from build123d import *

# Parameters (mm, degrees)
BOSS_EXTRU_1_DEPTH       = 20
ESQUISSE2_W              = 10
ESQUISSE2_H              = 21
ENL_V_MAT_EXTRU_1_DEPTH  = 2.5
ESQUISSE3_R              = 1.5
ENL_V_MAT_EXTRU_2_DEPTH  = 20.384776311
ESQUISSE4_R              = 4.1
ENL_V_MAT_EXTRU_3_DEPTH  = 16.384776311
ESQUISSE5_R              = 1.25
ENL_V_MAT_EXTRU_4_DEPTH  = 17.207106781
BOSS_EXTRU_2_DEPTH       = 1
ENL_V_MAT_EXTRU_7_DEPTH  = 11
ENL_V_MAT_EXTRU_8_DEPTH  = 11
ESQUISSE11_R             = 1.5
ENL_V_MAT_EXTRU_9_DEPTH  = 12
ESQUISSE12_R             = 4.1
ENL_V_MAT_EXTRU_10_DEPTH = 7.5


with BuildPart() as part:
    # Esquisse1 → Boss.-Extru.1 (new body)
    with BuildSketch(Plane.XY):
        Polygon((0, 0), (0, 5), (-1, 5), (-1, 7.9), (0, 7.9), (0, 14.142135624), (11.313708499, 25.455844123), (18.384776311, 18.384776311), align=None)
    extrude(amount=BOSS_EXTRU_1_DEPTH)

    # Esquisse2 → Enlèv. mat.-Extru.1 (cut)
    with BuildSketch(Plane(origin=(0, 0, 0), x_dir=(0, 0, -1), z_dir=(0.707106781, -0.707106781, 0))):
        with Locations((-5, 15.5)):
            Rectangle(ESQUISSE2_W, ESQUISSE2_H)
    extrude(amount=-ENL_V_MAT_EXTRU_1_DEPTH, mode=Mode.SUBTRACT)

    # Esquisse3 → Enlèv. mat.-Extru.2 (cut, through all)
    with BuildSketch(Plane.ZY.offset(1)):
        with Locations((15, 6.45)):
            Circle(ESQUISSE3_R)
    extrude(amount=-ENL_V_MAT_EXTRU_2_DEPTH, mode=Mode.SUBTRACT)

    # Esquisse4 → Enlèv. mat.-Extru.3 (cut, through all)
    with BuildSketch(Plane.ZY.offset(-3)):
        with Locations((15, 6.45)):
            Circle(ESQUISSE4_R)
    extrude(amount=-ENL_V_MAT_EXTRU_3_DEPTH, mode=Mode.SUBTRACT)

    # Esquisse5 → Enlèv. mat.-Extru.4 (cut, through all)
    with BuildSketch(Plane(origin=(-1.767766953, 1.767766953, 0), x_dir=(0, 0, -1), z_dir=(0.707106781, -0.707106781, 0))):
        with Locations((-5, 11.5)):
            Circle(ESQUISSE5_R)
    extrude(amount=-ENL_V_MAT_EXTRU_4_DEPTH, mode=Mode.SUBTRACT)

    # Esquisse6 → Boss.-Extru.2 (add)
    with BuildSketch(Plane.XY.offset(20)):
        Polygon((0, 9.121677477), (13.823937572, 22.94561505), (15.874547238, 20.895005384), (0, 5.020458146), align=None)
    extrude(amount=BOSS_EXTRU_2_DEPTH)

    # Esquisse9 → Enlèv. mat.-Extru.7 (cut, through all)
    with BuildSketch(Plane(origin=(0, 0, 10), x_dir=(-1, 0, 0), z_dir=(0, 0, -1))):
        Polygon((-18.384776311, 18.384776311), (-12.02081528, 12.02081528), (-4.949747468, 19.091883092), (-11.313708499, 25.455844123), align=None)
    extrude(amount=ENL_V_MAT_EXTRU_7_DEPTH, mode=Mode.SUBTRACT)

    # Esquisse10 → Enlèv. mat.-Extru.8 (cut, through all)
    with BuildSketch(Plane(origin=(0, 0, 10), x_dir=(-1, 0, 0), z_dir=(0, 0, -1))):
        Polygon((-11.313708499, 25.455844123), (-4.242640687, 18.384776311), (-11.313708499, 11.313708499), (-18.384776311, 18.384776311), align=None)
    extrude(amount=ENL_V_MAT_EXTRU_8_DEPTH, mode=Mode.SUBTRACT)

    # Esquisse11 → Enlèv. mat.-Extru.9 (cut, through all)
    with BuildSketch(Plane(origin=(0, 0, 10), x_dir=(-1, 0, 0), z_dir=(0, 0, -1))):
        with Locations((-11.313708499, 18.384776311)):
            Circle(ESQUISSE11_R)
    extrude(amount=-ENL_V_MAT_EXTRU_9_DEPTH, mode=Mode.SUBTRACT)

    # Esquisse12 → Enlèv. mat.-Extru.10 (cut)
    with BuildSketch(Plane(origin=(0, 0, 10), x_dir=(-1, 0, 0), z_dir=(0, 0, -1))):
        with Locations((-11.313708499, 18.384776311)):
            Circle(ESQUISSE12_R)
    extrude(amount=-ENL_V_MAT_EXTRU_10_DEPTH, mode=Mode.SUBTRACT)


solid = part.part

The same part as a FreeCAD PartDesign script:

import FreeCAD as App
import Part
import Sketcher
from FreeCAD import Vector
Q = App.Units.Quantity

doc = App.newDocument("Part")
body = doc.addObject("PartDesign::Body", "Body")

sketch1 = body.newObject("Sketcher::SketchObject", "Sketch")
sketch1.AttachmentSupport = (doc.getObject("XY_Plane"), [""])
sketch1.MapMode = "FlatFace"
sketch1.addGeometry([
    Part.LineSegment(Vector(0, 5, 0), Vector(0, 0, 0)),
    Part.LineSegment(Vector(0, 0, 0), Vector(18.384776, 18.384776, 0)),
    Part.LineSegment(Vector(18.384776, 18.384776, 0), Vector(11.313708, 25.455844, 0)),
    Part.LineSegment(Vector(11.313708, 25.455844, 0), Vector(0, 14.142136, 0)),
    Part.LineSegment(Vector(0, 14.142136, 0), Vector(0, 7.9, 0)),
    Part.LineSegment(Vector(0, 7.9, 0), Vector(-1, 7.9, 0)),
    Part.LineSegment(Vector(-1, 7.9, 0), Vector(-1, 5, 0)),
    Part.LineSegment(Vector(-1, 5, 0), Vector(0, 5, 0)),
], False)
sketch1.addConstraint([
    Sketcher.Constraint("Coincident", 0, 2, 1, 1),
    Sketcher.Constraint("Coincident", 1, 2, 2, 1),
    Sketcher.Constraint("Coincident", 2, 2, 3, 1),
    Sketcher.Constraint("Coincident", 3, 2, 4, 1),
    Sketcher.Constraint("Coincident", 4, 2, 5, 1),
    Sketcher.Constraint("Coincident", 5, 2, 6, 1),
    Sketcher.Constraint("Coincident", 6, 2, 7, 1),
    Sketcher.Constraint("Coincident", 7, 2, 0, 1),
    Sketcher.Constraint("Vertical", 0),
    Sketcher.Constraint("Vertical", 4),
    Sketcher.Constraint("Horizontal", 5),
    Sketcher.Constraint("Vertical", 6),
    Sketcher.Constraint("Horizontal", 7),
    Sketcher.Constraint("Coincident", 0, 2, -1, 1),
    Sketcher.Constraint("PointOnObject", 3, 2, -2),
    Sketcher.Constraint("Perpendicular", 1, 2),
    Sketcher.Constraint("Perpendicular", 2, 3),
    Sketcher.Constraint("DistanceX", 5, 2, 5, 1, Q("1 mm")),
    Sketcher.Constraint("DistanceY", 0, 2, 0, 1, Q("5 mm")),
    Sketcher.Constraint("Angle", 1, Q("45 deg")),
    Sketcher.Constraint("Distance", 1, Q("26 mm")),
    Sketcher.Constraint("Distance", 2, Q("10 mm")),
    Sketcher.Constraint("DistanceY", 6, 2, 6, 1, Q("2.9 mm")),
])
pad1 = body.newObject("PartDesign::Pad", "Pad")
pad1.Profile = sketch1
pad1.Length = 20

sketch2 = body.newObject("Sketcher::SketchObject", "Sketch001")
sketch2.Placement = App.Placement(Vector(0, 0, 0), App.Rotation(Vector(0, 0, -1), Vector(0.707106781, 0.707106781, 0), Vector(0.707106781, -0.707106781, 0), "ZXY"))
sketch2.addGeometry([
    Part.LineSegment(Vector(-10, 26, 0), Vector(-10, 5, 0)),
    Part.LineSegment(Vector(-10, 5, 0), Vector(0, 5, 0)),
    Part.LineSegment(Vector(0, 5, 0), Vector(0, 26, 0)),
    Part.LineSegment(Vector(0, 26, 0), Vector(-10, 26, 0)),
], False)
sketch2.addConstraint([
    Sketcher.Constraint("Coincident", 0, 2, 1, 1),
    Sketcher.Constraint("Coincident", 1, 2, 2, 1),
    Sketcher.Constraint("Coincident", 2, 2, 3, 1),
    Sketcher.Constraint("Coincident", 3, 2, 0, 1),
    Sketcher.Constraint("Vertical", 0),
    Sketcher.Constraint("Horizontal", 1),
    Sketcher.Constraint("Vertical", 2),
    Sketcher.Constraint("Horizontal", 3),
    Sketcher.Constraint("PointOnObject", 1, 2, -2),
    Sketcher.Constraint("DistanceX", 1, 1, 1, 2, Q("10 mm")),
    Sketcher.Constraint("DistanceY", 0, 2, 0, 1, Q("21 mm")),
    Sketcher.Constraint("DistanceY", -1, 1, 0, 2, Q("5 mm")),
])
pocket1 = body.newObject("PartDesign::Pocket", "Pocket")
pocket1.Profile = sketch2
pocket1.Length = 2.5

sketch3 = body.newObject("Sketcher::SketchObject", "Sketch002")
sketch3.AttachmentSupport = (doc.getObject("YZ_Plane"), [""])
sketch3.MapMode = "FlatFace"
sketch3.AttachmentOffset = App.Placement(Vector(0, 0, -1), App.Rotation())
sketch3.addGeometry(Part.Circle(Vector(6.45, 15, 0), Vector(0, 0, 1), 1.5), False)
sketch3.addConstraint([
    Sketcher.Constraint("Diameter", 0, Q("3 mm")),
    Sketcher.Constraint("DistanceY", -1, 1, 0, 3, Q("15 mm")),
    Sketcher.Constraint("DistanceX", -1, 1, 0, 3, Q("6.45 mm")),
])
pocket2 = body.newObject("PartDesign::Pocket", "Pocket001")
pocket2.Profile = sketch3
pocket2.Type = "ThroughAll"
pocket2.Reversed = True

sketch4 = body.newObject("Sketcher::SketchObject", "Sketch003")
sketch4.AttachmentSupport = (doc.getObject("YZ_Plane"), [""])
sketch4.MapMode = "FlatFace"
sketch4.AttachmentOffset = App.Placement(Vector(0, 0, 3), App.Rotation())
sketch4.addGeometry(Part.Circle(Vector(6.45, 15, 0), Vector(0, 0, 1), 4.1), False)
sketch4.addConstraint([
    Sketcher.Constraint("Diameter", 0, Q("8.2 mm")),
    Sketcher.Constraint("DistanceY", -1, 1, 0, 3, Q("15 mm")),
    Sketcher.Constraint("DistanceX", -1, 1, 0, 3, Q("6.45 mm")),
])
pocket3 = body.newObject("PartDesign::Pocket", "Pocket002")
pocket3.Profile = sketch4
pocket3.Type = "ThroughAll"
pocket3.Reversed = True

sketch5 = body.newObject("Sketcher::SketchObject", "Sketch004")
sketch5.Placement = App.Placement(Vector(-1.767767, 1.767767, 0), App.Rotation(Vector(0, 0, -1), Vector(0.707106781, 0.707106781, 0), Vector(0.707106781, -0.707106781, 0), "ZXY"))
sketch5.addGeometry(Part.Circle(Vector(-5, 11.5, 0), Vector(0, 0, 1), 1.25), False)
sketch5.addConstraint([
    Sketcher.Constraint("Diameter", 0, Q("2.5 mm")),
    Sketcher.Constraint("DistanceX", 0, 3, -1, 1, Q("5 mm")),
    Sketcher.Constraint("DistanceY", -1, 1, 0, 3, Q("11.5 mm")),
])
pocket4 = body.newObject("PartDesign::Pocket", "Pocket003")
pocket4.Profile = sketch5
pocket4.Type = "ThroughAll"

sketch6 = body.newObject("Sketcher::SketchObject", "Sketch005")
sketch6.AttachmentSupport = (doc.getObject("XY_Plane"), [""])
sketch6.MapMode = "FlatFace"
sketch6.AttachmentOffset = App.Placement(Vector(0, 0, 20), App.Rotation())
sketch6.addGeometry([
    Part.LineSegment(Vector(13.823938, 22.945615, 0), Vector(0, 9.121677, 0)),
    Part.LineSegment(Vector(0, 9.121677, 0), Vector(0, 5.020458, 0)),
    Part.LineSegment(Vector(0, 5.020458, 0), Vector(15.874547, 20.895005, 0)),
    Part.LineSegment(Vector(15.874547, 20.895005, 0), Vector(13.823938, 22.945615, 0)),
], False)
sketch6.addConstraint([
    Sketcher.Constraint("Coincident", 0, 2, 1, 1),
    Sketcher.Constraint("Coincident", 1, 2, 2, 1),
    Sketcher.Constraint("Coincident", 2, 2, 3, 1),
    Sketcher.Constraint("Coincident", 3, 2, 0, 1),
    Sketcher.Constraint("Vertical", 1),
    Sketcher.Constraint("PointOnObject", 0, 2, -2),
    Sketcher.Constraint("Parallel", 0, 2),
    Sketcher.Constraint("Perpendicular", 2, 3),
    Sketcher.Constraint("Angle", 0, Q("-135 deg")),
    Sketcher.Constraint("Distance", 3, Q("2.9 mm")),
    Sketcher.Constraint("Distance", 0, Q("19.55 mm")),
    Sketcher.Constraint("DistanceY", -1, 1, 1, 2, Q("5.020458 mm")),
])
pad2 = body.newObject("PartDesign::Pad", "Pad001")
pad2.Profile = sketch6
pad2.Length = 1

sketch7 = body.newObject("Sketcher::SketchObject", "Sketch006")
sketch7.AttachmentSupport = (doc.getObject("XY_Plane"), [""])
sketch7.MapMode = "FlatFace"
sketch7.AttachmentOffset = App.Placement(Vector(0, 0, 10), App.Rotation())
sketch7.addGeometry([
    Part.LineSegment(Vector(18.384776, 18.384776, 0), Vector(12.020815, 12.020815, 0)),
    Part.LineSegment(Vector(12.020815, 12.020815, 0), Vector(4.949747, 19.091883, 0)),
    Part.LineSegment(Vector(4.949747, 19.091883, 0), Vector(11.313708, 25.455844, 0)),
    Part.LineSegment(Vector(11.313708, 25.455844, 0), Vector(18.384776, 18.384776, 0)),
], False)
sketch7.addConstraint([
    Sketcher.Constraint("Coincident", 0, 2, 1, 1),
    Sketcher.Constraint("Coincident", 1, 2, 2, 1),
    Sketcher.Constraint("Coincident", 2, 2, 3, 1),
    Sketcher.Constraint("Coincident", 3, 2, 0, 1),
    Sketcher.Constraint("Perpendicular", 0, 1),
    Sketcher.Constraint("Perpendicular", 1, 2),
    Sketcher.Constraint("Perpendicular", 2, 3),
    Sketcher.Constraint("Angle", 0, Q("-135 deg")),
    Sketcher.Constraint("Distance", 0, Q("9 mm")),
    Sketcher.Constraint("Distance", 1, Q("10 mm")),
    Sketcher.Constraint("DistanceX", -1, 1, 2, 2, Q("11.313708 mm")),
    Sketcher.Constraint("DistanceY", -1, 1, 0, 2, Q("12.020815 mm")),
])
pocket5 = body.newObject("PartDesign::Pocket", "Pocket004")
pocket5.Profile = sketch7
pocket5.Type = "ThroughAll"

sketch8 = body.newObject("Sketcher::SketchObject", "Sketch007")
sketch8.AttachmentSupport = (doc.getObject("XY_Plane"), [""])
sketch8.MapMode = "FlatFace"
sketch8.AttachmentOffset = App.Placement(Vector(0, 0, 10), App.Rotation())
sketch8.addGeometry([
    Part.LineSegment(Vector(4.242641, 18.384776, 0), Vector(11.313708, 25.455844, 0)),
    Part.LineSegment(Vector(11.313708, 25.455844, 0), Vector(18.384776, 18.384776, 0)),
    Part.LineSegment(Vector(18.384776, 18.384776, 0), Vector(11.313708, 11.313708, 0)),
    Part.LineSegment(Vector(11.313708, 11.313708, 0), Vector(4.242641, 18.384776, 0)),
], False)
sketch8.addConstraint([
    Sketcher.Constraint("Coincident", 0, 2, 1, 1),
    Sketcher.Constraint("Coincident", 1, 2, 2, 1),
    Sketcher.Constraint("Coincident", 2, 2, 3, 1),
    Sketcher.Constraint("Coincident", 3, 2, 0, 1),
    Sketcher.Constraint("Perpendicular", 0, 1),
    Sketcher.Constraint("Perpendicular", 1, 2),
    Sketcher.Constraint("Perpendicular", 2, 3),
    Sketcher.Constraint("Horizontal", 1, 2, 3, 2),
    Sketcher.Constraint("Vertical", 0, 2, 2, 2),
    Sketcher.Constraint("Distance", 0, Q("10 mm")),
    Sketcher.Constraint("DistanceX", -1, 1, 0, 2, Q("11.313708 mm")),
    Sketcher.Constraint("DistanceY", -1, 1, 2, 2, Q("11.313708 mm")),
])
pocket6 = body.newObject("PartDesign::Pocket", "Pocket005")
pocket6.Profile = sketch8
pocket6.Type = "ThroughAll"

sketch9 = body.newObject("Sketcher::SketchObject", "Sketch008")
sketch9.AttachmentSupport = (doc.getObject("XY_Plane"), [""])
sketch9.MapMode = "FlatFace"
sketch9.AttachmentOffset = App.Placement(Vector(0, 0, 10), App.Rotation())
sketch9.addGeometry(Part.Circle(Vector(11.313708, 18.384776, 0), Vector(0, 0, 1), 1.5), False)
sketch9.addConstraint([
    Sketcher.Constraint("Diameter", 0, Q("3 mm")),
    Sketcher.Constraint("DistanceX", -1, 1, 0, 3, Q("11.313708 mm")),
    Sketcher.Constraint("DistanceY", -1, 1, 0, 3, Q("18.384776 mm")),
])
pocket7 = body.newObject("PartDesign::Pocket", "Pocket006")
pocket7.Profile = sketch9
pocket7.Type = "ThroughAll"
pocket7.Reversed = True

sketch10 = body.newObject("Sketcher::SketchObject", "Sketch009")
sketch10.AttachmentSupport = (doc.getObject("XY_Plane"), [""])
sketch10.MapMode = "FlatFace"
sketch10.AttachmentOffset = App.Placement(Vector(0, 0, 10), App.Rotation())
sketch10.addGeometry(Part.Circle(Vector(11.313708, 18.384776, 0), Vector(0, 0, 1), 4.1), False)
sketch10.addConstraint([
    Sketcher.Constraint("Diameter", 0, Q("8.2 mm")),
    Sketcher.Constraint("DistanceX", -1, 1, 0, 3, Q("11.313708 mm")),
    Sketcher.Constraint("DistanceY", -1, 1, 0, 3, Q("18.384776 mm")),
])
pocket8 = body.newObject("PartDesign::Pocket", "Pocket007")
pocket8.Profile = sketch10
pocket8.Length = 7.5
pocket8.Reversed = True

doc.recompute()
